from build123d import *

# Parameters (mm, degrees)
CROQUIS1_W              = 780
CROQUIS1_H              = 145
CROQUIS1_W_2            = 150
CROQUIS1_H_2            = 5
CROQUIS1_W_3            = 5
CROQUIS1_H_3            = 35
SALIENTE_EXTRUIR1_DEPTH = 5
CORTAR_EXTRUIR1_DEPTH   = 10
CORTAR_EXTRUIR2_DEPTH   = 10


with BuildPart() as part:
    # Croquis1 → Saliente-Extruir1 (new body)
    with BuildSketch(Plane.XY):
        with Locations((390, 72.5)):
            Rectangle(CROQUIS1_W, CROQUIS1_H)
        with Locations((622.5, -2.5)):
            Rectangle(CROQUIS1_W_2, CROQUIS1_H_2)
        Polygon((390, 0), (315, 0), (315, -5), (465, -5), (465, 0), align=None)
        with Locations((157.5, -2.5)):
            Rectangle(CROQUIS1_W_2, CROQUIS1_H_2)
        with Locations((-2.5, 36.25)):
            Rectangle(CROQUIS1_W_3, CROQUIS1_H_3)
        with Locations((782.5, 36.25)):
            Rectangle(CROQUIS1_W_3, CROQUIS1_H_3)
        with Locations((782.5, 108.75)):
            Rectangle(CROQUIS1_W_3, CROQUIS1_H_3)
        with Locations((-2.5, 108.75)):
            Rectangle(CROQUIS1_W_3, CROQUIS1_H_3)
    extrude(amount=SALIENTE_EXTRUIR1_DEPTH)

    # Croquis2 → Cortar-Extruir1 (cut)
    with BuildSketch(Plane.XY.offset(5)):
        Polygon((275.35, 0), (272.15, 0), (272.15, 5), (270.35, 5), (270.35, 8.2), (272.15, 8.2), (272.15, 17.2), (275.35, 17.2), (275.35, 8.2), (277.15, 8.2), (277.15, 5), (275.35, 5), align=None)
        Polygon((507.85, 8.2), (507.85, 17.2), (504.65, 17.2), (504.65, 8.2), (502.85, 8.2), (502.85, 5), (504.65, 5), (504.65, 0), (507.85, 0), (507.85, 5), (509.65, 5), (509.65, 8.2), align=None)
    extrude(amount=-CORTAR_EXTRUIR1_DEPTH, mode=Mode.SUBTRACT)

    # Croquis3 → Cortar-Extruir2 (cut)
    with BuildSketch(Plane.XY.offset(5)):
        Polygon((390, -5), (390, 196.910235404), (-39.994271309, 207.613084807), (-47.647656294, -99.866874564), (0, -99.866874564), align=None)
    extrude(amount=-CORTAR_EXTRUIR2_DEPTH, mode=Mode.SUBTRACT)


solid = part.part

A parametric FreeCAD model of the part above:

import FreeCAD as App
import Part
import Sketcher

V = App.Vector
Q = App.Units.Quantity


def add_polygon(sketch, points):
    """Adds a closed chain of lines whose ends are joined by coincident constraints."""
    first, n = sketch.GeometryCount, len(points)
    for a, b in zip(points, points[1:] + points[:1]):
        sketch.addGeometry(Part.LineSegment(App.Vector(*a, 0), App.Vector(*b, 0)), False)
    for i in range(n):
        sketch.addConstraint(Sketcher.Constraint("Coincident", first + i, 2, first + (i + 1) % n, 1))

doc = App.newDocument("Part")
body = doc.addObject("PartDesign::Body", "Body")

# Sketch on XY plane
sketch1 = body.newObject("Sketcher::SketchObject", "Sketch")
sketch1.AttachmentSupport = (doc.getObject("XY_Plane"), [""])
sketch1.MapMode = "FlatFace"
add_polygon(sketch1, [(0, 19), (0, 0), (82, 0), (82, -5), (232, -5), (232, 0), (315, 0), (315, -5), (465, -5), (465, 0), (548, 0), (548, -5), (698, -5), (698, 0), (780, 0), (780, 19), (785, 19), (785, 54), (780, 54), (780, 91), (785, 91), (785, 126), (780, 126), (780, 145), (0, 145), (0, 126), (-5, 126), (-5, 91), (0, 91), (0, 54), (-5, 54), (-5, 19)])  # lines 0-31
sketch1.addConstraint(Sketcher.Constraint("Vertical", 0))
sketch1.addConstraint(Sketcher.Constraint("Horizontal", 1))
sketch1.addConstraint(Sketcher.Constraint("Vertical", 2))
sketch1.addConstraint(Sketcher.Constraint("Horizontal", 3))
sketch1.addConstraint(Sketcher.Constraint("Vertical", 4))
sketch1.addConstraint(Sketcher.Constraint("Horizontal", 5))
sketch1.addConstraint(Sketcher.Constraint("Vertical", 6))
sketch1.addConstraint(Sketcher.Constraint("Horizontal", 7))
sketch1.addConstraint(Sketcher.Constraint("Vertical", 8))
sketch1.addConstraint(Sketcher.Constraint("Horizontal", 9))
sketch1.addConstraint(Sketcher.Constraint("Vertical", 10))
sketch1.addConstraint(Sketcher.Constraint("Horizontal", 11))
sketch1.addConstraint(Sketcher.Constraint("Vertical", 12))
sketch1.addConstraint(Sketcher.Constraint("Horizontal", 13))
sketch1.addConstraint(Sketcher.Constraint("Vertical", 14))
sketch1.addConstraint(Sketcher.Constraint("Horizontal", 15))
sketch1.addConstraint(Sketcher.Constraint("Vertical", 16))
sketch1.addConstraint(Sketcher.Constraint("Horizontal", 17))
sketch1.addConstraint(Sketcher.Constraint("Vertical", 18))
sketch1.addConstraint(Sketcher.Constraint("Horizontal", 19))
sketch1.addConstraint(Sketcher.Constraint("Vertical", 20))
sketch1.addConstraint(Sketcher.Constraint("Horizontal", 21))
sketch1.addConstraint(Sketcher.Constraint("Vertical", 22))
sketch1.addConstraint(Sketcher.Constraint("Horizontal", 23))
sketch1.addConstraint(Sketcher.Constraint("Vertical", 24))
sketch1.addConstraint(Sketcher.Constraint("Horizontal", 25))
sketch1.addConstraint(Sketcher.Constraint("Vertical", 26))
sketch1.addConstraint(Sketcher.Constraint("Horizontal", 27))
sketch1.addConstraint(Sketcher.Constraint("Vertical", 28))
sketch1.addConstraint(Sketcher.Constraint("Horizontal", 29))
sketch1.addConstraint(Sketcher.Constraint("Vertical", 30))
sketch1.addConstraint(Sketcher.Constraint("Horizontal", 31))
sketch1.addConstraint(Sketcher.Constraint("Coincident", 0, 2, -1, 1))
sketch1.addConstraint(Sketcher.Constraint("PointOnObject", 4, 2, -1))
sketch1.addConstraint(Sketcher.Constraint("PointOnObject", 8, 2, -1))
sketch1.addConstraint(Sketcher.Constraint("PointOnObject", 12, 2, -1))
sketch1.addConstraint(Sketcher.Constraint("PointOnObject", 23, 2, -2))
sketch1.addConstraint(Sketcher.Constraint("PointOnObject", 27, 2, -2))
sketch1.addConstraint(Sketcher.Constraint("Horizontal", 3, 2, 6, 2))
sketch1.addConstraint(Sketcher.Constraint("Horizontal", 7, 2, 10, 2))
sketch1.addConstraint(Sketcher.Constraint("Horizontal", 21, 2, 24, 2))
sketch1.addConstraint(Sketcher.Constraint("Horizontal", 19, 2, 26, 2))
sketch1.addConstraint(Sketcher.Constraint("Horizontal", 17, 2, 28, 2))
sketch1.addConstraint(Sketcher.Constraint("Horizontal", 15, 2, 30, 2))
sketch1.addConstraint(Sketcher.Constraint("Vertical", 14, 2, 17, 2))
sketch1.addConstraint(Sketcher.Constraint("Vertical", 16, 2, 19, 2))
sketch1.addConstraint(Sketcher.Constraint("Vertical", 18, 2, 21, 2))
sketch1.addConstraint(Sketcher.Constraint("Vertical", 26, 2, 29, 2))
sketch1.addConstraint(Sketcher.Constraint("Equal", 1, 5))
sketch1.addConstraint(Sketcher.Constraint("Equal", 3, 7))
sketch1.addConstraint(Sketcher.Constraint("Equal", 5, 9))
sketch1.addConstraint(Sketcher.Constraint("Equal", 7, 11))
sketch1.addConstraint(Sketcher.Constraint("Equal", 9, 13))
sketch1.addConstraint(Sketcher.Constraint("Equal", 21, 25))
sketch1.addConstraint(Sketcher.Constraint("Equal", 31, 2))
sketch1.addConstraint(Sketcher.Constraint("Equal", 16, 20))
sketch1.addConstraint(Sketcher.Constraint("Equal", 14, 22))
sketch1.addConstraint(Sketcher.Constraint("DistanceX", 3, 1, 3, 2, Q("150 mm")))
sketch1.addConstraint(Sketcher.Constraint("DistanceX", 15, 1, 15, 2, Q("5 mm")))
sketch1.addConstraint(Sketcher.Constraint("DistanceX", 23, 2, 23, 1, Q("780 mm")))
sketch1.addConstraint(Sketcher.Constraint("DistanceY", 16, 1, 16, 2, Q("35 mm")))
sketch1.addConstraint(Sketcher.Constraint("DistanceY", 18, 1, 18, 2, Q("37.5 mm")))
sketch1.addConstraint(Sketcher.Constraint("DistanceY", -1, 1, 22, 2, Q("145 mm")))
pad1 = body.newObject("PartDesign::Pad", "Pad")
pad1.Profile = sketch1
pad1.Length = 5

# Sketch on XY plane
sketch2 = body.newObject("Sketcher::SketchObject", "Sketch001")
sketch2.AttachmentSupport = (doc.getObject("XY_Plane"), [""])
sketch2.MapMode = "FlatFace"
sketch2.AttachmentOffset = App.Placement(V(0, 0, 5), App.Rotation())
add_polygon(sketch2, [(272.1, 0), (275.4, 0), (275.4, 5), (277.1, 5), (277.1, 8.2), (275.4, 8.2), (275.4, 17.2), (272.1, 17.2), (272.1, 8.2), (270.4, 8.2), (270.4, 5), (272.1, 5)])  # lines 0-11
add_polygon(sketch2, [(507.9, 8.2), (507.9, 17.2), (504.6, 17.2), (504.6, 8.2), (502.9, 8.2), (502.9, 5), (504.6, 5), (504.6, 0), (507.9, 0), (507.9, 5), (509.6, 5), (509.6, 8.2)])  # lines 12-23
sketch2.addConstraint(Sketcher.Constraint("Horizontal", 0))
sketch2.addConstraint(Sketcher.Constraint("Vertical", 1))
sketch2.addConstraint(Sketcher.Constraint("Horizontal", 2))
sketch2.addConstraint(Sketcher.Constraint("Vertical", 3))
sketch2.addConstraint(Sketcher.Constraint("Horizontal", 4))
sketch2.addConstraint(Sketcher.Constraint("Vertical", 5))
sketch2.addConstraint(Sketcher.Constraint("Horizontal", 6))
sketch2.addConstraint(Sketcher.Constraint("Vertical", 7))
sketch2.addConstraint(Sketcher.Constraint("Horizontal", 8))
sketch2.addConstraint(Sketcher.Constraint("Vertical", 9))
sketch2.addConstraint(Sketcher.Constraint("Horizontal", 10))
sketch2.addConstraint(Sketcher.Constraint("Vertical", 11))
sketch2.addConstraint(Sketcher.Constraint("Vertical", 12))
sketch2.addConstraint(Sketcher.Constraint("Horizontal", 13))
sketch2.addConstraint(Sketcher.Constraint("Vertical", 14))
sketch2.addConstraint(Sketcher.Constraint("Horizontal", 15))
sketch2.addConstraint(Sketcher.Constraint("Vertical", 16))
sketch2.addConstraint(Sketcher.Constraint("Horizontal", 17))
sketch2.addConstraint(Sketcher.Constraint("Vertical", 18))
sketch2.addConstraint(Sketcher.Constraint("Horizontal", 19))
sketch2.addConstraint(Sketcher.Constraint("Vertical", 20))
sketch2.addConstraint(Sketcher.Constraint("Horizontal", 21))
sketch2.addConstraint(Sketcher.Constraint("Vertical", 22))
sketch2.addConstraint(Sketcher.Constraint("Horizontal", 23))
sketch2.addConstraint(Sketcher.Constraint("PointOnObject", 0, 2, -1))
sketch2.addConstraint(Sketcher.Constraint("PointOnObject", 18, 2, -1))
sketch2.addConstraint(Sketcher.Constraint("Horizontal", 4, 2, 7, 2))
sketch2.addConstraint(Sketcher.Constraint("Horizontal", 2, 2, 9, 2))
sketch2.addConstraint(Sketcher.Constraint("Horizontal", 6, 2, 12, 2))
sketch2.addConstraint(Sketcher.Constraint("Horizontal", 8, 2, 14, 2))
sketch2.addConstraint(Sketcher.Constraint("Horizontal", 10, 2, 16, 2))
sketch2.addConstraint(Sketcher.Constraint("Horizontal", 17, 2, 20, 2))
sketch2.addConstraint(Sketcher.Constraint("Horizontal", 15, 2, 22, 2))
sketch2.addConstraint(Sketcher.Constraint("Vertical", 1, 2, 4, 2))
sketch2.addConstraint(Sketcher.Constraint("Vertical", 7, 2, 10, 2))
sketch2.addConstraint(Sketcher.Constraint("Vertical", 14, 2, 17, 2))
sketch2.addConstraint(Sketcher.Constraint("Vertical", 12, 2, 19, 2))
sketch2.addConstraint(Sketcher.Constraint("Equal", 4, 8))
sketch2.addConstraint(Sketcher.Constraint("Equal", 6, 13))
sketch2.addConstraint(Sketcher.Constraint("Equal", 10, 15))
sketch2.addConstraint(Sketcher.Constraint("Equal", 17, 21))
sketch2.addConstraint(Sketcher.Constraint("Equal", 19, 3))
sketch2.addConstraint(Sketcher.Constraint("DistanceY", 1, 1, 1, 2, Q("5 mm")))
sketch2.addConstraint(Sketcher.Constraint("DistanceY", 5, 1, 5, 2, Q("9 mm")))
sketch2.addConstraint(Sketcher.Constraint("DistanceX", 0, 1, 0, 2, Q("3.2 mm")))
sketch2.addConstraint(Sketcher.Constraint("DistanceX", 2, 1, 2, 2, Q("1.8 mm")))
sketch2.addConstraint(Sketcher.Constraint("DistanceX", 3, 2, 12, 2, Q("230.7 mm")))
sketch2.addConstraint(Sketcher.Constraint("DistanceX", -1, 1, 0, 2, Q("275.35 mm")))
pocket1 = body.newObject("PartDesign::Pocket", "Pocket")
pocket1.Profile = sketch2
pocket1.Length = 10

# Sketch on XY plane
sketch3 = body.newObject("Sketcher::SketchObject", "Sketch002")
sketch3.AttachmentSupport = (doc.getObject("XY_Plane"), [""])
sketch3.MapMode = "FlatFace"
sketch3.AttachmentOffset = App.Placement(V(0, 0, 5), App.Rotation())
add_polygon(sketch3, [(390, -5), (390, 197), (-40, 208), (-48, -100), (0, -100)])  # lines 0-4
sketch3.addConstraint(Sketcher.Constraint("Vertical", 0))
sketch3.addConstraint(Sketcher.Constraint("Horizontal", 3))
sketch3.addConstraint(Sketcher.Constraint("PointOnObject", 3, 2, -2))
sketch3.addConstraint(Sketcher.Constraint("Perpendicular", 1, 2))
sketch3.addConstraint(Sketcher.Constraint("DistanceX", -1, 1, 0, 2, Q("390 mm")))
sketch3.addConstraint(Sketcher.Constraint("DistanceY", 4, 2, -1, 1, Q("5 mm")))
sketch3.addConstraint(Sketcher.Constraint("Distance", 4, Q("401.372301 mm")))
sketch3.addConstraint(Sketcher.Constraint("Distance", 1, Q("430.127451 mm")))
sketch3.addConstraint(Sketcher.Constraint("DistanceX", 3, 1, 3, 2, Q("47.647656 mm")))
sketch3.addConstraint(Sketcher.Constraint("DistanceY", 0, 1, 0, 2, Q("201.910235 mm")))
pocket2 = body.newObject("PartDesign::Pocket", "Pocket001")
pocket2.Profile = sketch3
pocket2.Length = 10

doc.recompute()
